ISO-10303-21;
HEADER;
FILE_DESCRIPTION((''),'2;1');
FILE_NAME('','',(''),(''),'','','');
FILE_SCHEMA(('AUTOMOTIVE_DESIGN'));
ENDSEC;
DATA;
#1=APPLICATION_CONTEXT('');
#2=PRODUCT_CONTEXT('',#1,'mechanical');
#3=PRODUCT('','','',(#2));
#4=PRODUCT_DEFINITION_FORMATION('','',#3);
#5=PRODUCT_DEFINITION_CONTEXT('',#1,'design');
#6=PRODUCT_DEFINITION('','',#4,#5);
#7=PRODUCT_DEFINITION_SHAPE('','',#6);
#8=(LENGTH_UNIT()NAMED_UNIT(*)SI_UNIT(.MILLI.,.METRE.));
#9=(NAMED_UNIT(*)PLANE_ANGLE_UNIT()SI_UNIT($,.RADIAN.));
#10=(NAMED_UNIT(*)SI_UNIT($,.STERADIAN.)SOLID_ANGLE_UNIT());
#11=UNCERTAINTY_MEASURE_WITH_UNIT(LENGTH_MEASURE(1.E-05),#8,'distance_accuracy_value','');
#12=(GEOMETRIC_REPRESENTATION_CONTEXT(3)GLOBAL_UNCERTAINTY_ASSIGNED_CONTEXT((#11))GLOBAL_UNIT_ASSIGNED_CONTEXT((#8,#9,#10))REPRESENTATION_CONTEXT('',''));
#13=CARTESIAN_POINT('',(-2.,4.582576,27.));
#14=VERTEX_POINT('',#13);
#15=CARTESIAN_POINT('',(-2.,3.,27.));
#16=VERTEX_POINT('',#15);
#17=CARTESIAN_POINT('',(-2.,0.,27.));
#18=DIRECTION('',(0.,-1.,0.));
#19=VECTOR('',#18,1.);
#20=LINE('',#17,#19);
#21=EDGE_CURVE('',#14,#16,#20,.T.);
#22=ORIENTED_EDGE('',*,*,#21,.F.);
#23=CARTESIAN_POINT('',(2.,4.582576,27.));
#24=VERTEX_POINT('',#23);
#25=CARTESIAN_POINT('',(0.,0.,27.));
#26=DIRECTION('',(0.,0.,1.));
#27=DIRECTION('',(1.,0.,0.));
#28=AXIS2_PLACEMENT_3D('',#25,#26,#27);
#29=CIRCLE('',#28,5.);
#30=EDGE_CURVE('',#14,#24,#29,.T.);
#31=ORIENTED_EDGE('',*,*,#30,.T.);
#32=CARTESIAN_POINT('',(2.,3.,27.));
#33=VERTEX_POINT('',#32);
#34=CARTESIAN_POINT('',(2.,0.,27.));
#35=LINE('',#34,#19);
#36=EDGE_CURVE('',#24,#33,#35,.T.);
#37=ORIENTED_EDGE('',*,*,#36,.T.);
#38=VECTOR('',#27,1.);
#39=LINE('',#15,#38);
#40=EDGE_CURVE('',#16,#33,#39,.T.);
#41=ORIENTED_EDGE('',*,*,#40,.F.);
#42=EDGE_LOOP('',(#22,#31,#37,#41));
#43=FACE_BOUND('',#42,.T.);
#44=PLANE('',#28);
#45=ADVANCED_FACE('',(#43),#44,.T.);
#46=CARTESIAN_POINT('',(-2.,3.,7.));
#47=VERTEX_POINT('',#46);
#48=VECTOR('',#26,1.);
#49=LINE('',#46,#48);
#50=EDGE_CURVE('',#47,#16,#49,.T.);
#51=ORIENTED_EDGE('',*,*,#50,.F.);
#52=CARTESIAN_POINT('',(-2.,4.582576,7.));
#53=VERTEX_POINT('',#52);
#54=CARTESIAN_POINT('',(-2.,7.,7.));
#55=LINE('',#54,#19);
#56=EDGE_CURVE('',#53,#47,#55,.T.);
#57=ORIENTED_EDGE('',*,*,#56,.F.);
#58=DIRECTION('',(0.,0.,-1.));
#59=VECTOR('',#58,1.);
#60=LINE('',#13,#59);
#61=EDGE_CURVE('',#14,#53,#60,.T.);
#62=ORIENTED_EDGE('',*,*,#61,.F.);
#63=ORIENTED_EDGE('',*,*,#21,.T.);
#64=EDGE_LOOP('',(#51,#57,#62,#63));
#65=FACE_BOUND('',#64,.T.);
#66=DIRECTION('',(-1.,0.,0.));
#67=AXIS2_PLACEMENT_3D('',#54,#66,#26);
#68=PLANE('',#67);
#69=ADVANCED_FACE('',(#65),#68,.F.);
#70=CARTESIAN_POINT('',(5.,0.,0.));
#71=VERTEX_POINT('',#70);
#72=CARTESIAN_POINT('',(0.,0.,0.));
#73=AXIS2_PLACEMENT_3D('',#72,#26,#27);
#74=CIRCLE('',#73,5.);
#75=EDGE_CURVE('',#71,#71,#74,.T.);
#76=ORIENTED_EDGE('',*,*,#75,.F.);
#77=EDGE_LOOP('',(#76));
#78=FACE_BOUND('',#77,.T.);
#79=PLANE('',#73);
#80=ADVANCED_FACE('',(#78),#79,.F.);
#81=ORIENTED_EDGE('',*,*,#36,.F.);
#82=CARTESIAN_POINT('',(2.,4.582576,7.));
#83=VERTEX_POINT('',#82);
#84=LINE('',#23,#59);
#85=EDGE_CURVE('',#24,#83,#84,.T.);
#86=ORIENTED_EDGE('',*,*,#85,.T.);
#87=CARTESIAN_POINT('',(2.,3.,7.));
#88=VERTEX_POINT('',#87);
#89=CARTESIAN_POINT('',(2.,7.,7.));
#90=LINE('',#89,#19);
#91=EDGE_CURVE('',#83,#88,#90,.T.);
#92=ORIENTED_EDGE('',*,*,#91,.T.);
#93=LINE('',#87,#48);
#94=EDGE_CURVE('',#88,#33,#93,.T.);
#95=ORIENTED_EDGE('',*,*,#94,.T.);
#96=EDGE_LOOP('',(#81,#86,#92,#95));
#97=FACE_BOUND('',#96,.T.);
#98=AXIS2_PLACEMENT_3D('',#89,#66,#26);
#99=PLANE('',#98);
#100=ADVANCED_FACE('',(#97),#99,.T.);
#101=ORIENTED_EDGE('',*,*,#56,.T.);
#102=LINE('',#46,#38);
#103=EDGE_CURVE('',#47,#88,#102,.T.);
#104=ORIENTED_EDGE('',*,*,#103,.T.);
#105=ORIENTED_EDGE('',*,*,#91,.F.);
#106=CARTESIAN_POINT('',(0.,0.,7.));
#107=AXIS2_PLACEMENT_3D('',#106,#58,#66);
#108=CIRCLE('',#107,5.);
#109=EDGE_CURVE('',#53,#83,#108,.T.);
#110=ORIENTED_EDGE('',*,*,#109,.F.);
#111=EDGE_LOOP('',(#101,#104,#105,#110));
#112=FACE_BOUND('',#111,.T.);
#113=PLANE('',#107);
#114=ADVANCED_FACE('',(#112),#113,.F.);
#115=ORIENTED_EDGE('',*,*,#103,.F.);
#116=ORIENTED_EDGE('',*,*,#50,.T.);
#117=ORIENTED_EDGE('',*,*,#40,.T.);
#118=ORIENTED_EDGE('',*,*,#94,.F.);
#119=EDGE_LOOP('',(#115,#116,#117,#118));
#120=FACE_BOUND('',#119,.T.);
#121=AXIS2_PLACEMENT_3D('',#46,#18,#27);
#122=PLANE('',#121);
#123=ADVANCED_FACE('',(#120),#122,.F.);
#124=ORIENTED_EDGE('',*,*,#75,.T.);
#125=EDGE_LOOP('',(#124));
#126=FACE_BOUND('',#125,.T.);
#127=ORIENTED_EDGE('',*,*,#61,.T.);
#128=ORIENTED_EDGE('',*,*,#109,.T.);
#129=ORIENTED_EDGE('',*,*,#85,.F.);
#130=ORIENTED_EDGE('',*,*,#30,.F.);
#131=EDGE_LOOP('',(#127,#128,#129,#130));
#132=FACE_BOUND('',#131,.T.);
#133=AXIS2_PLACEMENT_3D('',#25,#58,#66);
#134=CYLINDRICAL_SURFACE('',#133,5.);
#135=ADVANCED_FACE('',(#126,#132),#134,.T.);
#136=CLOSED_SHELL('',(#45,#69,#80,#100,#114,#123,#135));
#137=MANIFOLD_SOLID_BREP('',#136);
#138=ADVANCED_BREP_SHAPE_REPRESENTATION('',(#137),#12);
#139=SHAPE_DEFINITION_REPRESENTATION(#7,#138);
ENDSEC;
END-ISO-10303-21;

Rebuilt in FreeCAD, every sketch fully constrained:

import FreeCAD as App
import Part
import Sketcher

V = App.Vector

doc = App.newDocument("Part")
body = doc.addObject("PartDesign::Body", "Body")

sketch1 = doc.addObject("Sketcher::SketchObject", "Sketch")
body.addObject(sketch1)
sketch1.AttachmentSupport = (doc.XY_Plane, [""])
sketch1.MapMode = "FlatFace"
sketch1.addGeometry(Part.Circle(V(0, 0, 0), V(0, 0, 1), 5), False)
sketch1.addConstraint(Sketcher.Constraint("Coincident", 0, 3, -1, 1))
sketch1.addConstraint(Sketcher.Constraint("Diameter", 0, 10.0))
pad1 = doc.addObject("PartDesign::Pad", "Pad")
body.addObject(pad1)
pad1.Profile = sketch1
pad1.Length = 27

sketch2 = doc.addObject("Sketcher::SketchObject", "Sketch001")
body.addObject(sketch2)
sketch2.AttachmentSupport = (doc.XY_Plane, [""])
sketch2.MapMode = "FlatFace"
sketch2.AttachmentOffset = App.Placement(V(0, 0, 27), App.Rotation())
sketch2.addGeometry(Part.LineSegment(V(-2, 7, 0), V(-2, 3, 0)), False)
sketch2.addGeometry(Part.LineSegment(V(-2, 3, 0), V(2, 3, 0)), False)
sketch2.addGeometry(Part.LineSegment(V(2, 3, 0), V(2, 7, 0)), False)
sketch2.addGeometry(Part.LineSegment(V(2, 7, 0), V(-2, 7, 0)), False)
sketch2.addConstraint(Sketcher.Constraint("Coincident", 0, 2, 1, 1))
sketch2.addConstraint(Sketcher.Constraint("Coincident", 1, 2, 2, 1))
sketch2.addConstraint(Sketcher.Constraint("Coincident", 2, 2, 3, 1))
sketch2.addConstraint(Sketcher.Constraint("Coincident", 3, 2, 0, 1))
sketch2.addConstraint(Sketcher.Constraint("Vertical", 0))
sketch2.addConstraint(Sketcher.Constraint("Horizontal", 1))
sketch2.addConstraint(Sketcher.Constraint("Vertical", 2))
sketch2.addConstraint(Sketcher.Constraint("Horizontal", 3))
sketch2.addConstraint(Sketcher.Constraint("Equal", 3, 0))
sketch2.addConstraint(Sketcher.Constraint("DistanceX", 1, 1, 1, 2, 4.0))
sketch2.addConstraint(Sketcher.Constraint("DistanceX", 0, 2, -1, 1, 2.0))
sketch2.addConstraint(Sketcher.Constraint("DistanceY", -1, 1, 0, 2, 3.0))
pocket1 = doc.addObject("PartDesign::Pocket", "Pocket")
body.addObject(pocket1)
pocket1.Profile = sketch2
pocket1.Length = 20

doc.recompute()
